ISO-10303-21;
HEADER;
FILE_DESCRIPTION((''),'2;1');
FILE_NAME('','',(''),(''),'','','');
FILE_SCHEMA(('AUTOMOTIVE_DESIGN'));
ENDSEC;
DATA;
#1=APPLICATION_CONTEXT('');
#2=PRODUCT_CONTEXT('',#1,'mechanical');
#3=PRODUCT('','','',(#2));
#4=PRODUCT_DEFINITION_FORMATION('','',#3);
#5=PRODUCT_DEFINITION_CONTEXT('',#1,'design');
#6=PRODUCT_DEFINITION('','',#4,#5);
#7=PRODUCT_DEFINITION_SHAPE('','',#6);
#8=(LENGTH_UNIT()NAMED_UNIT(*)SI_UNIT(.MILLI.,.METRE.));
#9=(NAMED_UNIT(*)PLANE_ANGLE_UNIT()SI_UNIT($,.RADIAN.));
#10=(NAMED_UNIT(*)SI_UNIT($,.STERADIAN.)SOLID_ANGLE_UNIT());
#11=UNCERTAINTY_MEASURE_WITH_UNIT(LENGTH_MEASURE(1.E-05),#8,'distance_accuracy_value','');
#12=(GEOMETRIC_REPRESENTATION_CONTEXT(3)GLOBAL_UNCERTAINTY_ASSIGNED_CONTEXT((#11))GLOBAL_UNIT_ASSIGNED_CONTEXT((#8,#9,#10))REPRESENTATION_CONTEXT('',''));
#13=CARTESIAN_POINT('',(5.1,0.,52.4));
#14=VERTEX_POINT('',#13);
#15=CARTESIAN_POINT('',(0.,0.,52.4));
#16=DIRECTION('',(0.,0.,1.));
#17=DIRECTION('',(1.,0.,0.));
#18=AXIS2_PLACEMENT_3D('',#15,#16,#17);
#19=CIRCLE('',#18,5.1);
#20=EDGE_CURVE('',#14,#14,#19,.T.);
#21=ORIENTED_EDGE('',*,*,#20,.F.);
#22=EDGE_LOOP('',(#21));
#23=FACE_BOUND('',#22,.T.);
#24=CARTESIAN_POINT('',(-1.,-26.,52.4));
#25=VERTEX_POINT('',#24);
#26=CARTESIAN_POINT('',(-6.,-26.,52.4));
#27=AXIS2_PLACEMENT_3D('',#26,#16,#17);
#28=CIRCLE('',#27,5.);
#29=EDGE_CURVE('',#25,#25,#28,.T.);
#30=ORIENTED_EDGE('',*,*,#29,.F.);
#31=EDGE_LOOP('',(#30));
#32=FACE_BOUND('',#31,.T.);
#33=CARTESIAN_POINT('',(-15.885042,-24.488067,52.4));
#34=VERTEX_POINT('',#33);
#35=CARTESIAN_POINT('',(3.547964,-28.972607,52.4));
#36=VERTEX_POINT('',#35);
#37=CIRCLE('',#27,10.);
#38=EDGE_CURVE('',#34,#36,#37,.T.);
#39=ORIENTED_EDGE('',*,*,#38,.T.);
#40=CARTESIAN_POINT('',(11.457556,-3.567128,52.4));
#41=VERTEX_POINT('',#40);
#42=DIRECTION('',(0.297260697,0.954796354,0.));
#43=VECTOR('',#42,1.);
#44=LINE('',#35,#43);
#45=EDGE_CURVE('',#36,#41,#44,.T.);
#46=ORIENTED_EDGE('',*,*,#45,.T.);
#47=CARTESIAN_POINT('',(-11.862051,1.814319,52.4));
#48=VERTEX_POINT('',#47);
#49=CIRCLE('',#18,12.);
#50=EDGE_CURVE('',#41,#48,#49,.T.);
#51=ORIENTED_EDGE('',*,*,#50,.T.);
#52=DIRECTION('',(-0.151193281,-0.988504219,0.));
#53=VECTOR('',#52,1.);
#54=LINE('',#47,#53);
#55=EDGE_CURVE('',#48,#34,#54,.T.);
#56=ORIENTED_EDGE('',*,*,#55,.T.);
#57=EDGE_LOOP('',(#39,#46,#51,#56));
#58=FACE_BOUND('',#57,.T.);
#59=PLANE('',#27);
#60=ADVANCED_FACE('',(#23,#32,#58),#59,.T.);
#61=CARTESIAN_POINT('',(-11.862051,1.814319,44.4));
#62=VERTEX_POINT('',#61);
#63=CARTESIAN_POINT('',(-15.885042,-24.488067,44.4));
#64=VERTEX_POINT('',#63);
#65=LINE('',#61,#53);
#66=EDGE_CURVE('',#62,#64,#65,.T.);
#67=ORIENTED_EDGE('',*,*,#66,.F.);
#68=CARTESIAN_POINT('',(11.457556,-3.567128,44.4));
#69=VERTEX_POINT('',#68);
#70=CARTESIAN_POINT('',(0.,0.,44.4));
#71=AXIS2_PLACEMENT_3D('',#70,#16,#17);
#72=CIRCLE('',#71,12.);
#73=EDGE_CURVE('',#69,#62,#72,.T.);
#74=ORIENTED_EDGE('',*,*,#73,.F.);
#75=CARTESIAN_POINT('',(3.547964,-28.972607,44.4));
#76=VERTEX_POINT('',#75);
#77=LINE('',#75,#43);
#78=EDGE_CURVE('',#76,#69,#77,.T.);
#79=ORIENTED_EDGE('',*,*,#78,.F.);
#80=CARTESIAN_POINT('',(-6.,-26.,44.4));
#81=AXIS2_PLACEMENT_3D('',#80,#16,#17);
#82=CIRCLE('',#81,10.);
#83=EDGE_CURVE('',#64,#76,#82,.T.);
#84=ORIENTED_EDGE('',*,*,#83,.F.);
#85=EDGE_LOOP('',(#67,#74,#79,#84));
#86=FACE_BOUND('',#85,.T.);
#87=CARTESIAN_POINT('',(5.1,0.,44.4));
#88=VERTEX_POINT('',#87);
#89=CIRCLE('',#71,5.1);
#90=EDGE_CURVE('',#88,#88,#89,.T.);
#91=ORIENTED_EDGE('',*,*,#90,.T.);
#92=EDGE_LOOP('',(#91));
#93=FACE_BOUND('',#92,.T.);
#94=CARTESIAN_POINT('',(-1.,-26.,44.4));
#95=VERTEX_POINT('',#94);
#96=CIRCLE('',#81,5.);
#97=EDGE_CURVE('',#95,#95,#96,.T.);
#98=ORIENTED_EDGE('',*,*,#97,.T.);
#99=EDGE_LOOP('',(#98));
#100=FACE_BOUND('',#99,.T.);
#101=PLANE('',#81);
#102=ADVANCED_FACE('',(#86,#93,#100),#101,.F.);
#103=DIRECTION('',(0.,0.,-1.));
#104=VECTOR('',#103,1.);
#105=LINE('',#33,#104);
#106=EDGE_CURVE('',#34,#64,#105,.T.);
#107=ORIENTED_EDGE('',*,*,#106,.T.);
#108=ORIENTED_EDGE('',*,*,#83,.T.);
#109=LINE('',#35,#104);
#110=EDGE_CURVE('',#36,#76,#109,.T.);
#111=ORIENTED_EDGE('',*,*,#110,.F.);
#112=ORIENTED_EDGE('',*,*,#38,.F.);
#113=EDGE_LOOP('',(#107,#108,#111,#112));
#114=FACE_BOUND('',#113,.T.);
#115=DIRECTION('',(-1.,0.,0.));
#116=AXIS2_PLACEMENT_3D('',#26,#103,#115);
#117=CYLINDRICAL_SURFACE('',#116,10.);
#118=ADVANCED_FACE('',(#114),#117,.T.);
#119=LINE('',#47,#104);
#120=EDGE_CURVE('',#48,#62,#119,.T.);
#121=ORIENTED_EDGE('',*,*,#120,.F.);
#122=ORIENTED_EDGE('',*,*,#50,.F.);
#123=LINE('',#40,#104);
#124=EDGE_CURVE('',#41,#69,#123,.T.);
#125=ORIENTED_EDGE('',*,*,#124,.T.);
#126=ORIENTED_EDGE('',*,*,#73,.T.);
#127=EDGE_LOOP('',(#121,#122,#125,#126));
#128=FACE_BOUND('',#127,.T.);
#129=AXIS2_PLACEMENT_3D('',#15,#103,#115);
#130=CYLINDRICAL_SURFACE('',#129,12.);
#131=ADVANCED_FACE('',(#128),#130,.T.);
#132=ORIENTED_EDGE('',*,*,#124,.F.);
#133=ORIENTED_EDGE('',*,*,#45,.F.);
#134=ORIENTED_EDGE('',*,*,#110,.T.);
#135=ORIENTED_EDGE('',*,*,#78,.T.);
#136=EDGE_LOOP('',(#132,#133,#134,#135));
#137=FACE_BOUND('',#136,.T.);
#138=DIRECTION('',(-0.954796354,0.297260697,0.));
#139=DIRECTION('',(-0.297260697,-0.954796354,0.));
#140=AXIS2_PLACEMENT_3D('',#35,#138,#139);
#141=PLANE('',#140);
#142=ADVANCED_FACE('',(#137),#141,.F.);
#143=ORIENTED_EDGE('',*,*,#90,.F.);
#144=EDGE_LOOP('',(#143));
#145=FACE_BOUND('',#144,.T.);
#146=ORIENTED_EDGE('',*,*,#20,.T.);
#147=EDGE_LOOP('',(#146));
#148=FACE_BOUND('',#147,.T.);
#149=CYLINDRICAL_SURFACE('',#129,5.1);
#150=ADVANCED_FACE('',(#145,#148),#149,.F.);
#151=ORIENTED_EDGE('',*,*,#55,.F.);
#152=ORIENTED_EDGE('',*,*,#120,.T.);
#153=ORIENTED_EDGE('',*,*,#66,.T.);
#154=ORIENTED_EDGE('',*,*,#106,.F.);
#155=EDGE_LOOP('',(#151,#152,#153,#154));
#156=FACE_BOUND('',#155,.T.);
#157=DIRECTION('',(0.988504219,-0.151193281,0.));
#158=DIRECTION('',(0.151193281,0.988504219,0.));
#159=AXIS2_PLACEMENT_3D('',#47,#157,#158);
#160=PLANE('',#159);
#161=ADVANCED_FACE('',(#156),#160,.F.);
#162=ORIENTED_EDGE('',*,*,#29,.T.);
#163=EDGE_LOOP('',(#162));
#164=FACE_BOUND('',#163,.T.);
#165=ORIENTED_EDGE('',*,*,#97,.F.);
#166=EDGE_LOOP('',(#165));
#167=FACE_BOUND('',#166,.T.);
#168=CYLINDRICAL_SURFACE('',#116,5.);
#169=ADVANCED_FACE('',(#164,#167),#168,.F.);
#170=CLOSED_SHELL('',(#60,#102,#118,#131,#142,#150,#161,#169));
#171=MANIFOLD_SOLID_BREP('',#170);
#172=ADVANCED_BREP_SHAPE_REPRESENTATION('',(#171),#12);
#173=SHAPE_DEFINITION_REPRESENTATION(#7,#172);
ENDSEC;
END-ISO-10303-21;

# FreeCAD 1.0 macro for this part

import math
import FreeCAD as App
import Part
import Sketcher
Q = App.Units.Quantity

doc = App.newDocument("Part")
body = doc.addObject("PartDesign::Body", "Body")

# Sketch on XY plane
sketch1 = doc.addObject("Sketcher::SketchObject", "Sketch")
body.addObject(sketch1)
sketch1.AttachmentSupport = (doc.XY_Plane, [""])
sketch1.MapMode = "FlatFace"
sketch1.AttachmentOffset = App.Placement(App.Vector(0, 0, 44.4), App.Rotation())
sketch1.addGeometry([
    Part.LineSegment(App.Vector(3.547964, -28.972607, 0), App.Vector(11.457556, -3.567128, 0)),  # 0
    Part.ArcOfCircle(Part.Circle(App.Vector(0, 0, 0), App.Vector(0, 0, 1), 12), math.radians(-17.293148), math.radians(171.303915)),  # 1
    Part.LineSegment(App.Vector(-11.862051, 1.814319, 0), App.Vector(-15.885042, -24.488067, 0)),  # 2
    Part.ArcOfCircle(Part.Circle(App.Vector(-6, -26, 0), App.Vector(0, 0, 1), 10), math.radians(171.303915), math.radians(342.706852)),  # 3
    Part.Circle(App.Vector(-6, -26, 0), App.Vector(0, 0, 1), 5),  # 4
    Part.Circle(App.Vector(0, 0, 0), App.Vector(0, 0, 1), 5.1),  # 5
], False)
sketch1.addConstraint([
    Sketcher.Constraint("Tangent", 0, 2, 1, 1),
    Sketcher.Constraint("Tangent", 1, 2, 2, 1),
    Sketcher.Constraint("Tangent", 2, 2, 3, 1),
    Sketcher.Constraint("Tangent", 3, 2, 0, 1),
    Sketcher.Constraint("Coincident", 1, 3, -1, 1),
    Sketcher.Constraint("Coincident", 5, 3, -1, 1),
    Sketcher.Constraint("Coincident", 4, 3, 3, 3),
    Sketcher.Constraint("Diameter", 4, Q("10 mm")),
    Sketcher.Constraint("Radius", 1, Q("12 mm")),
    Sketcher.Constraint("Radius", 3, Q("10 mm")),
    Sketcher.Constraint("Diameter", 5, Q("10.2 mm")),
    Sketcher.Constraint("DistanceX", 3, 3, -1, 1, Q("6 mm")),
    Sketcher.Constraint("DistanceY", 3, 3, -1, 1, Q("26 mm")),
])
pad1 = doc.addObject("PartDesign::Pad", "Pad")
body.addObject(pad1)
pad1.Profile = sketch1
pad1.Length = 8

doc.recompute()
